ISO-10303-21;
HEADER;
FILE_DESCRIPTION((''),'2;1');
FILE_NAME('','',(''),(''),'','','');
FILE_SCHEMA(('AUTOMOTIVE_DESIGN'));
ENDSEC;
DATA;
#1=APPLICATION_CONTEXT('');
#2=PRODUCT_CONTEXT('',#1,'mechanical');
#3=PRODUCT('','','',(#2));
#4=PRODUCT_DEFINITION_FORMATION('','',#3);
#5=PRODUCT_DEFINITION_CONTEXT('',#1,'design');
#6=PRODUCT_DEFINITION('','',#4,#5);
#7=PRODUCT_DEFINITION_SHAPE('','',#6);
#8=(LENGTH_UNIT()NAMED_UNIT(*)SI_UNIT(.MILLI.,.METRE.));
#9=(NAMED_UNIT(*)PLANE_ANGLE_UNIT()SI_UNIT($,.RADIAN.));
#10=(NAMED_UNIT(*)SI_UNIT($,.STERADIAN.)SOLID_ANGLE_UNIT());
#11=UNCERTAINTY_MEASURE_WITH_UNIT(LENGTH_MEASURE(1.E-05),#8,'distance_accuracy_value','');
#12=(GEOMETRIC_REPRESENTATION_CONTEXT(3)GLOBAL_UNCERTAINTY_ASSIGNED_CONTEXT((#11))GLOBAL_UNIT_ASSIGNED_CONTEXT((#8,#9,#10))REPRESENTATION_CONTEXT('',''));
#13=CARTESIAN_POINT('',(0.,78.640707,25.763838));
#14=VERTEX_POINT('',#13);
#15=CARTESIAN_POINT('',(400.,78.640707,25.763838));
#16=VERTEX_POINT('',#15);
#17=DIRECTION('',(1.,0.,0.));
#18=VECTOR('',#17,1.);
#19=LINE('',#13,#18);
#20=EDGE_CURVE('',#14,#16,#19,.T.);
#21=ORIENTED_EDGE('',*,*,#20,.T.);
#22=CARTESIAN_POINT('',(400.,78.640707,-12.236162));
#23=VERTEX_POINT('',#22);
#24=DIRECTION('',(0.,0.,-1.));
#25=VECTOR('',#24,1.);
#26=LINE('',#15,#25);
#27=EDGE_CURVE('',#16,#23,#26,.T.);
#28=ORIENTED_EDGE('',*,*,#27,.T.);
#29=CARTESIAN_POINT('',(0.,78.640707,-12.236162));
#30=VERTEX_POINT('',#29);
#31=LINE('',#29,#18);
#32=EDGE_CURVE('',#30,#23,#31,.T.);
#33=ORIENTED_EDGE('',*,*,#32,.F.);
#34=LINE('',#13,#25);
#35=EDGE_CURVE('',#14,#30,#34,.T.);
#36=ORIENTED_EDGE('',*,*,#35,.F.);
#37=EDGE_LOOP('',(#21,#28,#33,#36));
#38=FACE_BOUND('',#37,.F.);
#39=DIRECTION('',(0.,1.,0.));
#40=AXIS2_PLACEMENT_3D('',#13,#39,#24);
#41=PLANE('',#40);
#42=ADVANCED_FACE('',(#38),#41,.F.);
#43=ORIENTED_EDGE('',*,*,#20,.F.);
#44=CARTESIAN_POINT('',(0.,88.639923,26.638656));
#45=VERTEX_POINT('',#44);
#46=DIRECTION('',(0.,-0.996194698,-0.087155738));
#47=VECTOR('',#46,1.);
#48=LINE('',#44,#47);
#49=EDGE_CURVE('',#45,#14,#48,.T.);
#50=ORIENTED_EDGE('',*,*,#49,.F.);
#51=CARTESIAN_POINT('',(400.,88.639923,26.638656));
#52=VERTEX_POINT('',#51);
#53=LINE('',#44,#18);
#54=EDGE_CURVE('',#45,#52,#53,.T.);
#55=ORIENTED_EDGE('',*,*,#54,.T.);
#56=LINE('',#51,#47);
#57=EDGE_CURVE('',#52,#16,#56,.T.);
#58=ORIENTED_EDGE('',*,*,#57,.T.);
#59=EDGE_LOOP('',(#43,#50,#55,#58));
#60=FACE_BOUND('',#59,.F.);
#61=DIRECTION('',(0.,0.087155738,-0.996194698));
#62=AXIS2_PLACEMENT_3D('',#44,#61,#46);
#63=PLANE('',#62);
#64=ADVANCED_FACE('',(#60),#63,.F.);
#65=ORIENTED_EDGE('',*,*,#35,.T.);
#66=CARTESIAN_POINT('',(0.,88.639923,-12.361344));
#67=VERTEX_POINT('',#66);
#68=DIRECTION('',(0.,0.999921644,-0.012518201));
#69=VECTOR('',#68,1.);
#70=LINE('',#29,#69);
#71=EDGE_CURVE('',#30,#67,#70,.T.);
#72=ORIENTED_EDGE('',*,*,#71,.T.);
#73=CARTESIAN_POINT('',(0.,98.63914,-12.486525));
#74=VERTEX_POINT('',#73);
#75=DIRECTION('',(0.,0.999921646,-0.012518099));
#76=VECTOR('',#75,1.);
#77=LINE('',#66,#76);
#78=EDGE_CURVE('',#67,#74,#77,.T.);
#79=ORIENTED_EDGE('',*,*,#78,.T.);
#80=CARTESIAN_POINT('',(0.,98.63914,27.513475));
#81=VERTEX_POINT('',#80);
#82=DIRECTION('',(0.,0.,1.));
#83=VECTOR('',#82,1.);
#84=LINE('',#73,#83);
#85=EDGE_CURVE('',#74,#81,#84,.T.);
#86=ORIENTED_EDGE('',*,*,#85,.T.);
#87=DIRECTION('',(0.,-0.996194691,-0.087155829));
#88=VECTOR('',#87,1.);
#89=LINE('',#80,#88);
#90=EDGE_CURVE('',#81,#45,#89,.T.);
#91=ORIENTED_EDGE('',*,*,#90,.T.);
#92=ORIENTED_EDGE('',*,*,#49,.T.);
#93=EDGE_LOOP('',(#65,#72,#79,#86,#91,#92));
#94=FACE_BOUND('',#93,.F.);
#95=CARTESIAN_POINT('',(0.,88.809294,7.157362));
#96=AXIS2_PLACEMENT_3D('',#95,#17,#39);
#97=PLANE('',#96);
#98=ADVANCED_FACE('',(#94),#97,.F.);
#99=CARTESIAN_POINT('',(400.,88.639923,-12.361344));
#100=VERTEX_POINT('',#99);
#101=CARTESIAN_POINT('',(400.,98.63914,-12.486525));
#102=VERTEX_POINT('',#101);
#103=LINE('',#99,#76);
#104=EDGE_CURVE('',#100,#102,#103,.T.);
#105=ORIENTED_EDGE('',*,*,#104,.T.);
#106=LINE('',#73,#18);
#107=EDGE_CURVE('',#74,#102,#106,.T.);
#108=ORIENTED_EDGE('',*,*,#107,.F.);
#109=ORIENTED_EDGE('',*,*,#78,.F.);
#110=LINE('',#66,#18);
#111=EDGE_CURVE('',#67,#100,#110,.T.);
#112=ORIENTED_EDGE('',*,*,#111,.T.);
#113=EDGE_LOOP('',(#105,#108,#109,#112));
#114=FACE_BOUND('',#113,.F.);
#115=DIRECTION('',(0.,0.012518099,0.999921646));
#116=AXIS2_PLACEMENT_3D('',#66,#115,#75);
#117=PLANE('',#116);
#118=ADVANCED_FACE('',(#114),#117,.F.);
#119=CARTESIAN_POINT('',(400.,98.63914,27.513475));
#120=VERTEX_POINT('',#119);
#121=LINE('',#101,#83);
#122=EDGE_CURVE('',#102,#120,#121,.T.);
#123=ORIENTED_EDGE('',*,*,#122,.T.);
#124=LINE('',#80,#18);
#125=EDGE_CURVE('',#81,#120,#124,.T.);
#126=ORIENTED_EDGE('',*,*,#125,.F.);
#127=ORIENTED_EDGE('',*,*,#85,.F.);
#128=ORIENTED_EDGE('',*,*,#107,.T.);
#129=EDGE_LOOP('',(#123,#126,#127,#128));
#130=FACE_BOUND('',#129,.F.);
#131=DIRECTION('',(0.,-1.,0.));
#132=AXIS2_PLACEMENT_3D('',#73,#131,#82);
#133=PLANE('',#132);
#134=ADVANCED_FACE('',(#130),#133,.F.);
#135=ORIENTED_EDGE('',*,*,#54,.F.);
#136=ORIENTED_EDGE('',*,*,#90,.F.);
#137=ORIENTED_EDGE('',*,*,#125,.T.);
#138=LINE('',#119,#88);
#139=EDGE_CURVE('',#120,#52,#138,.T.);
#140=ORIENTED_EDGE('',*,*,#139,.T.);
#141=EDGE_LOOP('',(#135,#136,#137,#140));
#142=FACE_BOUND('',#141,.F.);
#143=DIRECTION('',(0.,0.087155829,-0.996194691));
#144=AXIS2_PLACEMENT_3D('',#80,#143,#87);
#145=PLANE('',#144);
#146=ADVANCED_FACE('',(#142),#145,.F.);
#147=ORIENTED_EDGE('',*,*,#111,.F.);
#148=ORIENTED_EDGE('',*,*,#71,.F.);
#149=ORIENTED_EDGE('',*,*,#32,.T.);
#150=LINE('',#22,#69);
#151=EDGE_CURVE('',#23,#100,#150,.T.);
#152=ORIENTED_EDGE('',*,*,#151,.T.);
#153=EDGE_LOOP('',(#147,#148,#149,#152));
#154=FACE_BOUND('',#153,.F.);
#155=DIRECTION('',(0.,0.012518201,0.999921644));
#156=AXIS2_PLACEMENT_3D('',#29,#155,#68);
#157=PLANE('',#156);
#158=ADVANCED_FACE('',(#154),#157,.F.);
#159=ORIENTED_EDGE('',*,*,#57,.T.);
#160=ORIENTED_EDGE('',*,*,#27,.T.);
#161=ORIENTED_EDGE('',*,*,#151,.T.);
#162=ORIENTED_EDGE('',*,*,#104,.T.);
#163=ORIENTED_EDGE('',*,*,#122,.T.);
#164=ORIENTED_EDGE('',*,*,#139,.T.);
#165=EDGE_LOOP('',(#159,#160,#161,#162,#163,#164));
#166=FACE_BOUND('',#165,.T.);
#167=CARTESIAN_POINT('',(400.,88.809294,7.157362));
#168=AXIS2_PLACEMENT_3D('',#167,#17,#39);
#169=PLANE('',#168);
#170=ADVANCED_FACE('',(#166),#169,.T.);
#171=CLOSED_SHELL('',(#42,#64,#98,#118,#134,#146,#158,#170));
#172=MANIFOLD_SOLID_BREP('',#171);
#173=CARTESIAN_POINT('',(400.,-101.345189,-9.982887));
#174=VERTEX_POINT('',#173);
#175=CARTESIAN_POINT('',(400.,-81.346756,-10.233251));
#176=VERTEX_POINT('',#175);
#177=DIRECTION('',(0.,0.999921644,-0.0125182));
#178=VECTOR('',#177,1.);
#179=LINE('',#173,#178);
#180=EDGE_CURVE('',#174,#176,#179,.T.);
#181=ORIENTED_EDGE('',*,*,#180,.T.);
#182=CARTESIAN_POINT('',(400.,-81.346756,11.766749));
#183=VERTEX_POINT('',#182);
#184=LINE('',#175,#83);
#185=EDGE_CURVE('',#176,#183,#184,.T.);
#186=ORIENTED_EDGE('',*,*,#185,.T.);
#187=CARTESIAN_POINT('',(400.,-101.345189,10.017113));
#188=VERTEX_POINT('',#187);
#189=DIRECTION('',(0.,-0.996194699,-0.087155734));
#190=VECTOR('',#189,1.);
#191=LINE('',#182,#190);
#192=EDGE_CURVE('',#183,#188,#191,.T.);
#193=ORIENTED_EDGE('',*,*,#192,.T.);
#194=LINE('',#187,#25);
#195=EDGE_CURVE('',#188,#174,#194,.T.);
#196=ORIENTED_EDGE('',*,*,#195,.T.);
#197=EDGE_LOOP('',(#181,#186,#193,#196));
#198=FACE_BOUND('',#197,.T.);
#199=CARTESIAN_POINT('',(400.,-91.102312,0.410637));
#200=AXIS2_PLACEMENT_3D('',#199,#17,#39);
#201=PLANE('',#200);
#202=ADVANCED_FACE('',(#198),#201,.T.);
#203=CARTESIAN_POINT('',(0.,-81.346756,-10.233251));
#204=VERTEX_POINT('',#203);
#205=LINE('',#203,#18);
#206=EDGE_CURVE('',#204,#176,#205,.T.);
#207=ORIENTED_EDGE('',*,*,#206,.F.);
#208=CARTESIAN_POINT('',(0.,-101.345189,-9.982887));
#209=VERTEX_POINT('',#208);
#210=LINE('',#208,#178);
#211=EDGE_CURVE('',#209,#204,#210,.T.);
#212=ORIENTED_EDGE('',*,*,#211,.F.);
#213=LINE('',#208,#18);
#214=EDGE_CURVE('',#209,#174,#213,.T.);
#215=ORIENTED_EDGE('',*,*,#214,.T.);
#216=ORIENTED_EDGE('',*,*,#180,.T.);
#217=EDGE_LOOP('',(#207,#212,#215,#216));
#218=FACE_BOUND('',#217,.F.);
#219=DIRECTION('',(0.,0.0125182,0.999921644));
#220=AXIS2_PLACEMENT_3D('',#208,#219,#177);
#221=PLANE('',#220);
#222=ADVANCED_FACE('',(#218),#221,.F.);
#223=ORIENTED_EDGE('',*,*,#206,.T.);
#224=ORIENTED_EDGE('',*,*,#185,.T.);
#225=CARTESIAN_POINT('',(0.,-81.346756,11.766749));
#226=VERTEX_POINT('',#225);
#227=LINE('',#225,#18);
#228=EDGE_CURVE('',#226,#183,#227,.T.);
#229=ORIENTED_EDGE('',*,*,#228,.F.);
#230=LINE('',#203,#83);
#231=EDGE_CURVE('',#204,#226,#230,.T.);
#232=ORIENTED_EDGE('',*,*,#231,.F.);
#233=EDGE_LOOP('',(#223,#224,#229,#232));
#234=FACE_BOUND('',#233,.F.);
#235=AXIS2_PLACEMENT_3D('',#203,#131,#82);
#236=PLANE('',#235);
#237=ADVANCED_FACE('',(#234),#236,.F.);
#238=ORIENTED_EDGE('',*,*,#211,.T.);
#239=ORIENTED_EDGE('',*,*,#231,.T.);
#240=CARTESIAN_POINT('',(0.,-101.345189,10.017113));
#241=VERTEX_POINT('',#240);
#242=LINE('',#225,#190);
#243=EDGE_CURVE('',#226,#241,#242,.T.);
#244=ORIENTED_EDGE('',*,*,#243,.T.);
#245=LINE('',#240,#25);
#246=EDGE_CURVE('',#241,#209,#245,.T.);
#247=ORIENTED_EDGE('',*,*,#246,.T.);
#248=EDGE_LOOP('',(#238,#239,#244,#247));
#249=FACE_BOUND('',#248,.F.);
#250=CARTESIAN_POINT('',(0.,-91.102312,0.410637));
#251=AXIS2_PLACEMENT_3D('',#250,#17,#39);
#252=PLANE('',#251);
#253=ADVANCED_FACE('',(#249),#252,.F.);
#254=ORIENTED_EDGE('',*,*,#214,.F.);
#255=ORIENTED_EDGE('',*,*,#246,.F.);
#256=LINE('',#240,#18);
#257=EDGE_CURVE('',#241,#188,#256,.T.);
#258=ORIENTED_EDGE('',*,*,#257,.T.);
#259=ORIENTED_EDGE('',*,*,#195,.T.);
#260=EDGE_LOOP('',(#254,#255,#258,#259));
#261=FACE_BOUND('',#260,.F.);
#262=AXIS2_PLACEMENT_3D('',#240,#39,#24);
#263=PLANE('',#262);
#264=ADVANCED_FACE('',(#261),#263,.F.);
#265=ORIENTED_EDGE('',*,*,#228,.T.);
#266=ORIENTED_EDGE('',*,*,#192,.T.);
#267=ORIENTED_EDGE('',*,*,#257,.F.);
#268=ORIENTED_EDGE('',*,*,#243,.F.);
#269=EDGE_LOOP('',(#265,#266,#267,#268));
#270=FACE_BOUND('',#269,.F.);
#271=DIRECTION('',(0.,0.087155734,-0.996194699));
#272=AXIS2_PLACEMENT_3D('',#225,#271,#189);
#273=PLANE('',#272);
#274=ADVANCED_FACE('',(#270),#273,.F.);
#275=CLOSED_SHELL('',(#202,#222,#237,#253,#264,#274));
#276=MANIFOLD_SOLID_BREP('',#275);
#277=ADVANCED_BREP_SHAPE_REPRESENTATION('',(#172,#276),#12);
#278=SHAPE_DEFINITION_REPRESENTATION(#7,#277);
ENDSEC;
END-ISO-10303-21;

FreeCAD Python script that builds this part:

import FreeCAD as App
import Part
import Sketcher

V = App.Vector
Q = App.Units.Quantity

doc = App.newDocument("Part")
body = doc.addObject("PartDesign::Body", "Body")
body.AllowCompound = True

# Sketch on YZ plane
sketch1 = doc.addObject("Sketcher::SketchObject", "Sketch")
body.addObject(sketch1)
sketch1.AttachmentSupport = (doc.YZ_Plane, [""])
sketch1.MapMode = "FlatFace"
sketch1.addGeometry(Part.LineSegment(V(-81, 12, 0), V(-101, 10, 0)), False)
sketch1.addGeometry(Part.LineSegment(V(-101, 10, 0), V(-101, -10, 0)), False)
sketch1.addGeometry(Part.LineSegment(V(-101, -10, 0), V(-81, -10, 0)), False)
sketch1.addGeometry(Part.LineSegment(V(-81, -10, 0), V(-81, 12, 0)), False)
sketch1.addGeometry(Part.LineSegment(V(99, -12, 0), V(99, 28, 0)), False)
sketch1.addGeometry(Part.LineSegment(V(99, 28, 0), V(89, 27, 0)), False)
sketch1.addGeometry(Part.LineSegment(V(89, 27, 0), V(79, 26, 0)), False)
sketch1.addGeometry(Part.LineSegment(V(79, 26, 0), V(79, -12, 0)), False)
sketch1.addGeometry(Part.LineSegment(V(79, -12, 0), V(89, -12, 0)), False)
sketch1.addGeometry(Part.LineSegment(V(89, -12, 0), V(99, -12, 0)), False)
sketch1.addConstraint(Sketcher.Constraint("Coincident", 0, 2, 1, 1))
sketch1.addConstraint(Sketcher.Constraint("Coincident", 1, 2, 2, 1))
sketch1.addConstraint(Sketcher.Constraint("Coincident", 2, 2, 3, 1))
sketch1.addConstraint(Sketcher.Constraint("Coincident", 3, 2, 0, 1))
sketch1.addConstraint(Sketcher.Constraint("Coincident", 4, 2, 5, 1))
sketch1.addConstraint(Sketcher.Constraint("Coincident", 5, 2, 6, 1))
sketch1.addConstraint(Sketcher.Constraint("Coincident", 6, 2, 7, 1))
sketch1.addConstraint(Sketcher.Constraint("Coincident", 7, 2, 8, 1))
sketch1.addConstraint(Sketcher.Constraint("Coincident", 8, 2, 9, 1))
sketch1.addConstraint(Sketcher.Constraint("Coincident", 9, 2, 4, 1))
sketch1.addConstraint(Sketcher.Constraint("Vertical", 1))
sketch1.addConstraint(Sketcher.Constraint("Vertical", 3))
sketch1.addConstraint(Sketcher.Constraint("Vertical", 4))
sketch1.addConstraint(Sketcher.Constraint("Vertical", 7))
sketch1.addConstraint(Sketcher.Constraint("Parallel", 0, 5))
sketch1.addConstraint(Sketcher.Constraint("Parallel", 5, 6))
sketch1.addConstraint(Sketcher.Constraint("Parallel", 2, 8))
sketch1.addConstraint(Sketcher.Constraint("Parallel", 8, 9))
sketch1.addConstraint(Sketcher.Constraint("Vertical", 5, 2, 8, 2))
sketch1.addConstraint(Sketcher.Constraint("Equal", 5, 6))
sketch1.addConstraint(Sketcher.Constraint("DistanceY", 1, 2, 1, 1, Q("20 mm")))
sketch1.addConstraint(Sketcher.Constraint("DistanceY", 3, 1, 3, 2, Q("22 mm")))
sketch1.addConstraint(Sketcher.Constraint("DistanceY", 4, 1, 4, 2, Q("40 mm")))
sketch1.addConstraint(Sketcher.Constraint("DistanceY", 7, 2, 7, 1, Q("38 mm")))
sketch1.addConstraint(Sketcher.Constraint("Angle", 0, Q("-175 deg")))
sketch1.addConstraint(Sketcher.Constraint("Distance", 2, Q("20 mm")))
sketch1.addConstraint(Sketcher.Constraint("DistanceX", 0, 2, -1, 1, Q("101.345189 mm")))
sketch1.addConstraint(Sketcher.Constraint("DistanceY", 2, 2, -1, 1, Q("10.233251 mm")))
sketch1.addConstraint(Sketcher.Constraint("DistanceX", -1, 1, 4, 2, Q("98.63914 mm")))
sketch1.addConstraint(Sketcher.Constraint("DistanceY", -1, 1, 6, 2, Q("25.763838 mm")))
pad1 = doc.addObject("PartDesign::Pad", "Pad")
body.addObject(pad1)
pad1.Profile = sketch1
pad1.Length = 400

doc.recompute()
